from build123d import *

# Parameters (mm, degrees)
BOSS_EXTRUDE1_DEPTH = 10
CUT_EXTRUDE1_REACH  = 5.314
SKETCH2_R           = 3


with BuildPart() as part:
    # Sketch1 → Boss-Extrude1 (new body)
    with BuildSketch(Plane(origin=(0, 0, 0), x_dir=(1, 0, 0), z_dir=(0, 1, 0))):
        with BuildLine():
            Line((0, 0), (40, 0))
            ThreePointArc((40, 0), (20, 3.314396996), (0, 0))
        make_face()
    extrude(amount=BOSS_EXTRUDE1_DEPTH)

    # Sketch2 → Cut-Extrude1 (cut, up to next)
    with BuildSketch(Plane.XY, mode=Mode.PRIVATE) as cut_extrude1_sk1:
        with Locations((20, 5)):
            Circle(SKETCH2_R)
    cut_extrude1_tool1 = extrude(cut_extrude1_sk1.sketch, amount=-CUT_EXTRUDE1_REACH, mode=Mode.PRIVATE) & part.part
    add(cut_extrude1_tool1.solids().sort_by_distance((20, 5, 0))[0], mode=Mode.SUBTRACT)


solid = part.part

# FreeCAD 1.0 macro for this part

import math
import FreeCAD as App
import Part
import Sketcher
from FreeCAD import Vector

doc = App.newDocument("Part")
body = doc.addObject("PartDesign::Body", "Body")

sketch1 = doc.addObject("Sketcher::SketchObject", "Sketch")
body.addObject(sketch1)
sketch1.AttachmentSupport = (doc.XZ_Plane, [""])
sketch1.MapMode = "FlatFace"
sketch1.addGeometry([
    Part.LineSegment(Vector(0, 0, 0), Vector(40, 0, 0)),
    Part.ArcOfCircle(Part.Circle(Vector(20, 59, 0), Vector(0, 0, 1), 62), math.radians(-109), math.radians(-71)),
], False)
sketch1.addConstraint([
    Sketcher.Constraint("Coincident", 0, 1, 1, 1),
    Sketcher.Constraint("Coincident", 1, 2, 0, 2),
    Sketcher.Constraint("Horizontal", 0),
    Sketcher.Constraint("Coincident", 0, 1, -1, 1),
    Sketcher.Constraint("Radius", 1, 62.0),
    Sketcher.Constraint("DistanceX", 0, 1, 0, 2, 40.0),
])
pad1 = doc.addObject("PartDesign::Pad", "Pad")
body.addObject(pad1)
pad1.Profile = sketch1
pad1.Length = 10
pad1.Reversed = True

sketch2 = doc.addObject("Sketcher::SketchObject", "Sketch001")
body.addObject(sketch2)
sketch2.AttachmentSupport = (doc.XY_Plane, [""])
sketch2.MapMode = "FlatFace"
sketch2.addGeometry(Part.Circle(Vector(20, 5, 0), Vector(0, 0, 1), 3), False)
sketch2.addConstraint([
    Sketcher.Constraint("Diameter", 0, 6.0),
    Sketcher.Constraint("DistanceX", -1, 1, 0, 3, 20.0),
    Sketcher.Constraint("DistanceY", -1, 1, 0, 3, 5.0),
])
pocket1 = doc.addObject("PartDesign::Pocket", "Pocket")
body.addObject(pocket1)
pocket1.Profile = sketch2
pocket1.Type = "UpToFirst"

doc.recompute()
